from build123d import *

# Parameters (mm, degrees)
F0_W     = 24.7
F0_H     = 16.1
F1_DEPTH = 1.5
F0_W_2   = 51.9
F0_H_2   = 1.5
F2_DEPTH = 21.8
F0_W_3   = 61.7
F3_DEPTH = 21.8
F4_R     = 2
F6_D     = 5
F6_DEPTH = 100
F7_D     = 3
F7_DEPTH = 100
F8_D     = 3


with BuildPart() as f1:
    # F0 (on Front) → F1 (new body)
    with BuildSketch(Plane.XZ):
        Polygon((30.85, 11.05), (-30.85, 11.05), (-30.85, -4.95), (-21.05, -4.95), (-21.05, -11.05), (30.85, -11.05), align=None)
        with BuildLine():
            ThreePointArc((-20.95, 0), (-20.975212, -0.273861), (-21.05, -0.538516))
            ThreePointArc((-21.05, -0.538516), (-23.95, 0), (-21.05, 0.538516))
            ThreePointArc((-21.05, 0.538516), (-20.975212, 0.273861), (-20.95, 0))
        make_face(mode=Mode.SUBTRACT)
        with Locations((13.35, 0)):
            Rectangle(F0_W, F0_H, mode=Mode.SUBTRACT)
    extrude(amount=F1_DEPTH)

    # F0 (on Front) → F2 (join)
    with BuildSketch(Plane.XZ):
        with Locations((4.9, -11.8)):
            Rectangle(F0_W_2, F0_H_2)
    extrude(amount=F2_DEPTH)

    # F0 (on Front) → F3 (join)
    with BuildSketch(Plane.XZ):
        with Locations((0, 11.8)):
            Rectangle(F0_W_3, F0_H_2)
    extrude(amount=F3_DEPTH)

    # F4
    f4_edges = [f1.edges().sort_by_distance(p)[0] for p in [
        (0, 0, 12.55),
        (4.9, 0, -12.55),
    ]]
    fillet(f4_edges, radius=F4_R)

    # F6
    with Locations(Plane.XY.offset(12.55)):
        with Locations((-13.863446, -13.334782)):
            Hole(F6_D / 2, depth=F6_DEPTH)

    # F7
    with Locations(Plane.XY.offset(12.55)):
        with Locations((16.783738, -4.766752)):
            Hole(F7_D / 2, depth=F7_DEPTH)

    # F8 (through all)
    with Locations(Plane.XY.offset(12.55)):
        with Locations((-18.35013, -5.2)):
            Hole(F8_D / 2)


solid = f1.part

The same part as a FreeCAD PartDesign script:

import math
import FreeCAD as App
import Part
import Sketcher

V = App.Vector
Q = App.Units.Quantity


def edges_at(feature, points):
    """Names of the edges that pass closest to the given points."""
    edges = feature.Shape.Edges
    near = lambda p: min(range(len(edges)), key=lambda i: edges[i].distToShape(Part.Vertex(*p))[0])
    return sorted({f"Edge{near(p) + 1}" for p in points})

doc = App.newDocument("Part")
params = doc.addObject("Spreadsheet::Sheet", "Params")
for row, (alias, value) in enumerate([
    ("sketch1_radius", "1.5 mm"),
    ("sketch1_height", "16 mm"),
    ("sketch1_width", "61.7 mm"),
    ("sketch1_width2", "9.8 mm"),
    ("sketch1_width3", "24.7 mm"),
    ("pad1_length", "1.5 mm"),
    ("sketch2_width", "51.9 mm"),
    ("sketch2_height", "1.5 mm"),
    ("pad2_length", "21.8 mm"),
    ("sketch3_width", "61.7 mm"),
    ("sketch3_height", "1.5 mm"),
    ("pad3_length", "21.8 mm"),
    ("fillet_radius", "2 mm"),
    ("sketch4_diameter", "5 mm"),
    ("hole_diameter", "5 mm"),
    ("hole_depth", "100 mm"),
    ("sketch5_diameter", "3 mm"),
    ("hole2_diameter", "3 mm"),
    ("hole2_depth", "100 mm"),
    ("sketch6_diameter", "3 mm"),
    ("hole3_diameter", "3 mm"),
], start=1):
    params.set(f"A{row}", alias)
    params.set(f"B{row}", "=" + value)
    params.setAlias(f"B{row}", alias)

body = doc.addObject("PartDesign::Body", "Body")

sketch1 = doc.addObject("Sketcher::SketchObject", "Sketch")
body.addObject(sketch1)
sketch1.AttachmentSupport = (doc.XZ_Plane, [""])
sketch1.MapMode = "FlatFace"
sketch1.addGeometry([
    Part.LineSegment(V(30.9, 11.1, 0), V(-30.9, 11.1, 0)),
    Part.LineSegment(V(-30.9, 11.1, 0), V(-30.9, -5, 0)),
    Part.LineSegment(V(-30.9, -5, 0), V(-21.1, -5, 0)),
    Part.LineSegment(V(-21.1, -5, 0), V(-21.1, -11.1, 0)),
    Part.LineSegment(V(-21.1, -11.1, 0), V(30.9, -11.1, 0)),
    Part.LineSegment(V(30.9, -11.1, 0), V(30.9, 11.1, 0)),
    Part.ArcOfCircle(Part.Circle(V(-22.5, 0, 0), V(0, 0, 1), 1.5), math.radians(0), math.radians(21)),
    Part.ArcOfCircle(Part.Circle(V(-22.5, 0, 0), V(0, 0, 1), 1.5), math.radians(-21), math.radians(0)),
    Part.ArcOfCircle(Part.Circle(V(-22.5, 0, 0), V(0, 0, 1), 1.5), math.radians(21), math.radians(339)),
    Part.LineSegment(V(25.7, -8.1, 0), V(1, -8.1, 0)),
    Part.LineSegment(V(1, -8.1, 0), V(1, 8.1, 0)),
    Part.LineSegment(V(1, 8.1, 0), V(25.7, 8.1, 0)),
    Part.LineSegment(V(25.7, 8.1, 0), V(25.7, -8.1, 0)),
], False)
sketch1.addConstraint([
    Sketcher.Constraint("Coincident", 0, 2, 1, 1),
    Sketcher.Constraint("Coincident", 1, 2, 2, 1),
    Sketcher.Constraint("Coincident", 2, 2, 3, 1),
    Sketcher.Constraint("Coincident", 3, 2, 4, 1),
    Sketcher.Constraint("Coincident", 4, 2, 5, 1),
    Sketcher.Constraint("Coincident", 5, 2, 0, 1),
    Sketcher.Constraint("Tangent", 6, 1, 7, 2),
    Sketcher.Constraint("Tangent", 7, 1, 8, 2),
    Sketcher.Constraint("Tangent", 8, 1, 6, 2),
    Sketcher.Constraint("Coincident", 9, 2, 10, 1),
    Sketcher.Constraint("Coincident", 10, 2, 11, 1),
    Sketcher.Constraint("Coincident", 11, 2, 12, 1),
    Sketcher.Constraint("Coincident", 12, 2, 9, 1),
    Sketcher.Constraint("Horizontal", 0),
    Sketcher.Constraint("Vertical", 1),
    Sketcher.Constraint("Horizontal", 2),
    Sketcher.Constraint("Vertical", 3),
    Sketcher.Constraint("Horizontal", 4),
    Sketcher.Constraint("Vertical", 5),
    Sketcher.Constraint("Horizontal", 9),
    Sketcher.Constraint("Vertical", 10),
    Sketcher.Constraint("Horizontal", 11),
    Sketcher.Constraint("Vertical", 12),
    Sketcher.Constraint("Symmetric", 0, 2, 4, 2, -1, 1),
    Sketcher.Constraint("Symmetric", 7, 1, 8, 1, -1),
    Sketcher.Constraint("PointOnObject", 6, 1, -1),
    Sketcher.Constraint("Vertical", 3, 2, 7, 1),
    Sketcher.Constraint("Radius", 8, Q("1.5 mm")),
    Sketcher.Constraint("DistanceY", 1, 2, 1, 1, Q("16 mm")),
    Sketcher.Constraint("DistanceX", 0, 2, 0, 1, Q("61.7 mm")),
    Sketcher.Constraint("DistanceX", 2, 1, 2, 2, Q("9.8 mm")),
    Sketcher.Constraint("DistanceX", 9, 2, 9, 1, Q("24.7 mm")),
    Sketcher.Constraint("DistanceY", 3, 2, 3, 1, Q("6.1 mm")),
    Sketcher.Constraint("DistanceY", 10, 1, 10, 2, Q("16.1 mm")),
    Sketcher.Constraint("DistanceX", -1, 1, 9, 2, Q("1 mm")),
    Sketcher.Constraint("DistanceY", 3, 2, 9, 2, Q("3 mm")),
    Sketcher.Constraint("DistanceX", 0, 2, 8, 3, Q("8.4 mm")),
])
sketch1.setExpression("Constraints[27]", "Params.sketch1_radius")
sketch1.setExpression("Constraints[28]", "Params.sketch1_height")
sketch1.setExpression("Constraints[29]", "Params.sketch1_width")
sketch1.setExpression("Constraints[30]", "Params.sketch1_width2")
sketch1.setExpression("Constraints[31]", "Params.sketch1_width3")
pad1 = doc.addObject("PartDesign::Pad", "Pad")
body.addObject(pad1)
pad1.Profile = sketch1
pad1.setExpression("Length", "Params.pad1_length")

sketch2 = doc.addObject("Sketcher::SketchObject", "Sketch001")
body.addObject(sketch2)
sketch2.AttachmentSupport = (doc.XZ_Plane, [""])
sketch2.MapMode = "FlatFace"
sketch2.addGeometry([
    Part.LineSegment(V(-21.1, -11.1, 0), V(-21.1, -12.6, 0)),
    Part.LineSegment(V(-21.1, -12.6, 0), V(30.9, -12.6, 0)),
    Part.LineSegment(V(30.9, -12.6, 0), V(30.9, -11.1, 0)),
    Part.LineSegment(V(30.9, -11.1, 0), V(-21.1, -11.1, 0)),
], False)
sketch2.addConstraint([
    Sketcher.Constraint("Coincident", 0, 2, 1, 1),
    Sketcher.Constraint("Coincident", 1, 2, 2, 1),
    Sketcher.Constraint("Coincident", 2, 2, 3, 1),
    Sketcher.Constraint("Coincident", 3, 2, 0, 1),
    Sketcher.Constraint("Vertical", 0),
    Sketcher.Constraint("Horizontal", 1),
    Sketcher.Constraint("Vertical", 2),
    Sketcher.Constraint("Horizontal", 3),
    Sketcher.Constraint("DistanceX", 1, 1, 1, 2, Q("51.9 mm")),
    Sketcher.Constraint("DistanceY", 0, 2, 0, 1, Q("1.5 mm")),
    Sketcher.Constraint("DistanceX", 0, 2, -1, 1, Q("21.05 mm")),
    Sketcher.Constraint("DistanceY", 0, 2, -1, 1, Q("12.55 mm")),
])
sketch2.setExpression("Constraints[8]", "Params.sketch2_width")
sketch2.setExpression("Constraints[9]", "Params.sketch2_height")
pad2 = doc.addObject("PartDesign::Pad", "Pad001")
body.addObject(pad2)
pad2.Profile = sketch2
pad2.setExpression("Length", "Params.pad2_length")

sketch3 = doc.addObject("Sketcher::SketchObject", "Sketch002")
body.addObject(sketch3)
sketch3.AttachmentSupport = (doc.XZ_Plane, [""])
sketch3.MapMode = "FlatFace"
sketch3.addGeometry([
    Part.LineSegment(V(-30.9, 12.6, 0), V(-30.9, 11.1, 0)),
    Part.LineSegment(V(-30.9, 11.1, 0), V(30.9, 11.1, 0)),
    Part.LineSegment(V(30.9, 11.1, 0), V(30.9, 12.6, 0)),
    Part.LineSegment(V(30.9, 12.6, 0), V(-30.9, 12.6, 0)),
], False)
sketch3.addConstraint([
    Sketcher.Constraint("Coincident", 0, 2, 1, 1),
    Sketcher.Constraint("Coincident", 1, 2, 2, 1),
    Sketcher.Constraint("Coincident", 2, 2, 3, 1),
    Sketcher.Constraint("Coincident", 3, 2, 0, 1),
    Sketcher.Constraint("Vertical", 0),
    Sketcher.Constraint("Horizontal", 1),
    Sketcher.Constraint("Vertical", 2),
    Sketcher.Constraint("Horizontal", 3),
    Sketcher.Constraint("DistanceX", 1, 1, 1, 2, Q("61.7 mm")),
    Sketcher.Constraint("DistanceY", 0, 2, 0, 1, Q("1.5 mm")),
    Sketcher.Constraint("DistanceX", 0, 2, -1, 1, Q("30.85 mm")),
    Sketcher.Constraint("DistanceY", -1, 1, 0, 2, Q("11.05 mm")),
])
sketch3.setExpression("Constraints[8]", "Params.sketch3_width")
sketch3.setExpression("Constraints[9]", "Params.sketch3_height")
pad3 = doc.addObject("PartDesign::Pad", "Pad002")
body.addObject(pad3)
pad3.Profile = sketch3
pad3.setExpression("Length", "Params.pad3_length")
doc.recompute()

fillet = doc.addObject("PartDesign::Fillet", "Fillet")
body.addObject(fillet)
fillet.Base = (pad3, edges_at(pad3, [(0, 0, 12.55), (4.9, 0, -12.55)]))
fillet.setExpression("Radius", "Params.fillet_radius")

sketch4 = doc.addObject("Sketcher::SketchObject", "Sketch003")
body.addObject(sketch4)
sketch4.AttachmentSupport = (doc.XY_Plane, [""])
sketch4.MapMode = "FlatFace"
sketch4.AttachmentOffset = App.Placement(V(0, 0, 12.55), App.Rotation())
sketch4.addGeometry(Part.Circle(V(-13.9, -13.3, 0), V(0, 0, 1), 2.5), False)
sketch4.addConstraint([
    Sketcher.Constraint("Diameter", 0, Q("5 mm")),
    Sketcher.Constraint("DistanceX", 0, 3, -1, 1, Q("13.863446 mm")),
    Sketcher.Constraint("DistanceY", 0, 3, -1, 1, Q("13.334782 mm")),
])
sketch4.setExpression("Constraints[0]", "Params.sketch4_diameter")
doc.recompute()
hole = doc.addObject("PartDesign::Hole", "Hole")
body.addObject(hole)
hole.Profile = sketch4
hole.ThreadType = "None"
hole.setExpression("Diameter", "Params.hole_diameter")
hole.DepthType = "Dimension"
hole.setExpression("Depth", "Params.hole_depth")
hole.DrillPoint = "Flat"

sketch5 = doc.addObject("Sketcher::SketchObject", "Sketch004")
body.addObject(sketch5)
sketch5.AttachmentSupport = (doc.XY_Plane, [""])
sketch5.MapMode = "FlatFace"
sketch5.AttachmentOffset = App.Placement(V(0, 0, 12.55), App.Rotation())
sketch5.addGeometry(Part.Circle(V(16.8, -4.8, 0), V(0, 0, 1), 1.5), False)
sketch5.addConstraint([
    Sketcher.Constraint("Diameter", 0, Q("3 mm")),
    Sketcher.Constraint("DistanceX", -1, 1, 0, 3, Q("16.783738 mm")),
    Sketcher.Constraint("DistanceY", 0, 3, -1, 1, Q("4.766752 mm")),
])
sketch5.setExpression("Constraints[0]", "Params.sketch5_diameter")
doc.recompute()
hole2 = doc.addObject("PartDesign::Hole", "Hole001")
body.addObject(hole2)
hole2.Profile = sketch5
hole2.ThreadType = "None"
hole2.setExpression("Diameter", "Params.hole2_diameter")
hole2.DepthType = "Dimension"
hole2.setExpression("Depth", "Params.hole2_depth")
hole2.DrillPoint = "Flat"

sketch6 = doc.addObject("Sketcher::SketchObject", "Sketch005")
body.addObject(sketch6)
sketch6.AttachmentSupport = (doc.XY_Plane, [""])
sketch6.MapMode = "FlatFace"
sketch6.AttachmentOffset = App.Placement(V(0, 0, 12.55), App.Rotation())
sketch6.addGeometry(Part.Circle(V(-18.4, -5.2, 0), V(0, 0, 1), 1.5), False)
sketch6.addConstraint([
    Sketcher.Constraint("Diameter", 0, Q("3 mm")),
    Sketcher.Constraint("DistanceY", 0, 3, -1, 1, Q("5.2 mm")),
    Sketcher.Constraint("DistanceX", 0, 3, -1, 1, Q("18.35013 mm")),
])
sketch6.setExpression("Constraints[0]", "Params.sketch6_diameter")
doc.recompute()
hole3 = doc.addObject("PartDesign::Hole", "Hole002")
body.addObject(hole3)
hole3.Profile = sketch6
hole3.ThreadType = "None"
hole3.setExpression("Diameter", "Params.hole3_diameter")
hole3.DepthType = "ThroughAll"

doc.recompute()
